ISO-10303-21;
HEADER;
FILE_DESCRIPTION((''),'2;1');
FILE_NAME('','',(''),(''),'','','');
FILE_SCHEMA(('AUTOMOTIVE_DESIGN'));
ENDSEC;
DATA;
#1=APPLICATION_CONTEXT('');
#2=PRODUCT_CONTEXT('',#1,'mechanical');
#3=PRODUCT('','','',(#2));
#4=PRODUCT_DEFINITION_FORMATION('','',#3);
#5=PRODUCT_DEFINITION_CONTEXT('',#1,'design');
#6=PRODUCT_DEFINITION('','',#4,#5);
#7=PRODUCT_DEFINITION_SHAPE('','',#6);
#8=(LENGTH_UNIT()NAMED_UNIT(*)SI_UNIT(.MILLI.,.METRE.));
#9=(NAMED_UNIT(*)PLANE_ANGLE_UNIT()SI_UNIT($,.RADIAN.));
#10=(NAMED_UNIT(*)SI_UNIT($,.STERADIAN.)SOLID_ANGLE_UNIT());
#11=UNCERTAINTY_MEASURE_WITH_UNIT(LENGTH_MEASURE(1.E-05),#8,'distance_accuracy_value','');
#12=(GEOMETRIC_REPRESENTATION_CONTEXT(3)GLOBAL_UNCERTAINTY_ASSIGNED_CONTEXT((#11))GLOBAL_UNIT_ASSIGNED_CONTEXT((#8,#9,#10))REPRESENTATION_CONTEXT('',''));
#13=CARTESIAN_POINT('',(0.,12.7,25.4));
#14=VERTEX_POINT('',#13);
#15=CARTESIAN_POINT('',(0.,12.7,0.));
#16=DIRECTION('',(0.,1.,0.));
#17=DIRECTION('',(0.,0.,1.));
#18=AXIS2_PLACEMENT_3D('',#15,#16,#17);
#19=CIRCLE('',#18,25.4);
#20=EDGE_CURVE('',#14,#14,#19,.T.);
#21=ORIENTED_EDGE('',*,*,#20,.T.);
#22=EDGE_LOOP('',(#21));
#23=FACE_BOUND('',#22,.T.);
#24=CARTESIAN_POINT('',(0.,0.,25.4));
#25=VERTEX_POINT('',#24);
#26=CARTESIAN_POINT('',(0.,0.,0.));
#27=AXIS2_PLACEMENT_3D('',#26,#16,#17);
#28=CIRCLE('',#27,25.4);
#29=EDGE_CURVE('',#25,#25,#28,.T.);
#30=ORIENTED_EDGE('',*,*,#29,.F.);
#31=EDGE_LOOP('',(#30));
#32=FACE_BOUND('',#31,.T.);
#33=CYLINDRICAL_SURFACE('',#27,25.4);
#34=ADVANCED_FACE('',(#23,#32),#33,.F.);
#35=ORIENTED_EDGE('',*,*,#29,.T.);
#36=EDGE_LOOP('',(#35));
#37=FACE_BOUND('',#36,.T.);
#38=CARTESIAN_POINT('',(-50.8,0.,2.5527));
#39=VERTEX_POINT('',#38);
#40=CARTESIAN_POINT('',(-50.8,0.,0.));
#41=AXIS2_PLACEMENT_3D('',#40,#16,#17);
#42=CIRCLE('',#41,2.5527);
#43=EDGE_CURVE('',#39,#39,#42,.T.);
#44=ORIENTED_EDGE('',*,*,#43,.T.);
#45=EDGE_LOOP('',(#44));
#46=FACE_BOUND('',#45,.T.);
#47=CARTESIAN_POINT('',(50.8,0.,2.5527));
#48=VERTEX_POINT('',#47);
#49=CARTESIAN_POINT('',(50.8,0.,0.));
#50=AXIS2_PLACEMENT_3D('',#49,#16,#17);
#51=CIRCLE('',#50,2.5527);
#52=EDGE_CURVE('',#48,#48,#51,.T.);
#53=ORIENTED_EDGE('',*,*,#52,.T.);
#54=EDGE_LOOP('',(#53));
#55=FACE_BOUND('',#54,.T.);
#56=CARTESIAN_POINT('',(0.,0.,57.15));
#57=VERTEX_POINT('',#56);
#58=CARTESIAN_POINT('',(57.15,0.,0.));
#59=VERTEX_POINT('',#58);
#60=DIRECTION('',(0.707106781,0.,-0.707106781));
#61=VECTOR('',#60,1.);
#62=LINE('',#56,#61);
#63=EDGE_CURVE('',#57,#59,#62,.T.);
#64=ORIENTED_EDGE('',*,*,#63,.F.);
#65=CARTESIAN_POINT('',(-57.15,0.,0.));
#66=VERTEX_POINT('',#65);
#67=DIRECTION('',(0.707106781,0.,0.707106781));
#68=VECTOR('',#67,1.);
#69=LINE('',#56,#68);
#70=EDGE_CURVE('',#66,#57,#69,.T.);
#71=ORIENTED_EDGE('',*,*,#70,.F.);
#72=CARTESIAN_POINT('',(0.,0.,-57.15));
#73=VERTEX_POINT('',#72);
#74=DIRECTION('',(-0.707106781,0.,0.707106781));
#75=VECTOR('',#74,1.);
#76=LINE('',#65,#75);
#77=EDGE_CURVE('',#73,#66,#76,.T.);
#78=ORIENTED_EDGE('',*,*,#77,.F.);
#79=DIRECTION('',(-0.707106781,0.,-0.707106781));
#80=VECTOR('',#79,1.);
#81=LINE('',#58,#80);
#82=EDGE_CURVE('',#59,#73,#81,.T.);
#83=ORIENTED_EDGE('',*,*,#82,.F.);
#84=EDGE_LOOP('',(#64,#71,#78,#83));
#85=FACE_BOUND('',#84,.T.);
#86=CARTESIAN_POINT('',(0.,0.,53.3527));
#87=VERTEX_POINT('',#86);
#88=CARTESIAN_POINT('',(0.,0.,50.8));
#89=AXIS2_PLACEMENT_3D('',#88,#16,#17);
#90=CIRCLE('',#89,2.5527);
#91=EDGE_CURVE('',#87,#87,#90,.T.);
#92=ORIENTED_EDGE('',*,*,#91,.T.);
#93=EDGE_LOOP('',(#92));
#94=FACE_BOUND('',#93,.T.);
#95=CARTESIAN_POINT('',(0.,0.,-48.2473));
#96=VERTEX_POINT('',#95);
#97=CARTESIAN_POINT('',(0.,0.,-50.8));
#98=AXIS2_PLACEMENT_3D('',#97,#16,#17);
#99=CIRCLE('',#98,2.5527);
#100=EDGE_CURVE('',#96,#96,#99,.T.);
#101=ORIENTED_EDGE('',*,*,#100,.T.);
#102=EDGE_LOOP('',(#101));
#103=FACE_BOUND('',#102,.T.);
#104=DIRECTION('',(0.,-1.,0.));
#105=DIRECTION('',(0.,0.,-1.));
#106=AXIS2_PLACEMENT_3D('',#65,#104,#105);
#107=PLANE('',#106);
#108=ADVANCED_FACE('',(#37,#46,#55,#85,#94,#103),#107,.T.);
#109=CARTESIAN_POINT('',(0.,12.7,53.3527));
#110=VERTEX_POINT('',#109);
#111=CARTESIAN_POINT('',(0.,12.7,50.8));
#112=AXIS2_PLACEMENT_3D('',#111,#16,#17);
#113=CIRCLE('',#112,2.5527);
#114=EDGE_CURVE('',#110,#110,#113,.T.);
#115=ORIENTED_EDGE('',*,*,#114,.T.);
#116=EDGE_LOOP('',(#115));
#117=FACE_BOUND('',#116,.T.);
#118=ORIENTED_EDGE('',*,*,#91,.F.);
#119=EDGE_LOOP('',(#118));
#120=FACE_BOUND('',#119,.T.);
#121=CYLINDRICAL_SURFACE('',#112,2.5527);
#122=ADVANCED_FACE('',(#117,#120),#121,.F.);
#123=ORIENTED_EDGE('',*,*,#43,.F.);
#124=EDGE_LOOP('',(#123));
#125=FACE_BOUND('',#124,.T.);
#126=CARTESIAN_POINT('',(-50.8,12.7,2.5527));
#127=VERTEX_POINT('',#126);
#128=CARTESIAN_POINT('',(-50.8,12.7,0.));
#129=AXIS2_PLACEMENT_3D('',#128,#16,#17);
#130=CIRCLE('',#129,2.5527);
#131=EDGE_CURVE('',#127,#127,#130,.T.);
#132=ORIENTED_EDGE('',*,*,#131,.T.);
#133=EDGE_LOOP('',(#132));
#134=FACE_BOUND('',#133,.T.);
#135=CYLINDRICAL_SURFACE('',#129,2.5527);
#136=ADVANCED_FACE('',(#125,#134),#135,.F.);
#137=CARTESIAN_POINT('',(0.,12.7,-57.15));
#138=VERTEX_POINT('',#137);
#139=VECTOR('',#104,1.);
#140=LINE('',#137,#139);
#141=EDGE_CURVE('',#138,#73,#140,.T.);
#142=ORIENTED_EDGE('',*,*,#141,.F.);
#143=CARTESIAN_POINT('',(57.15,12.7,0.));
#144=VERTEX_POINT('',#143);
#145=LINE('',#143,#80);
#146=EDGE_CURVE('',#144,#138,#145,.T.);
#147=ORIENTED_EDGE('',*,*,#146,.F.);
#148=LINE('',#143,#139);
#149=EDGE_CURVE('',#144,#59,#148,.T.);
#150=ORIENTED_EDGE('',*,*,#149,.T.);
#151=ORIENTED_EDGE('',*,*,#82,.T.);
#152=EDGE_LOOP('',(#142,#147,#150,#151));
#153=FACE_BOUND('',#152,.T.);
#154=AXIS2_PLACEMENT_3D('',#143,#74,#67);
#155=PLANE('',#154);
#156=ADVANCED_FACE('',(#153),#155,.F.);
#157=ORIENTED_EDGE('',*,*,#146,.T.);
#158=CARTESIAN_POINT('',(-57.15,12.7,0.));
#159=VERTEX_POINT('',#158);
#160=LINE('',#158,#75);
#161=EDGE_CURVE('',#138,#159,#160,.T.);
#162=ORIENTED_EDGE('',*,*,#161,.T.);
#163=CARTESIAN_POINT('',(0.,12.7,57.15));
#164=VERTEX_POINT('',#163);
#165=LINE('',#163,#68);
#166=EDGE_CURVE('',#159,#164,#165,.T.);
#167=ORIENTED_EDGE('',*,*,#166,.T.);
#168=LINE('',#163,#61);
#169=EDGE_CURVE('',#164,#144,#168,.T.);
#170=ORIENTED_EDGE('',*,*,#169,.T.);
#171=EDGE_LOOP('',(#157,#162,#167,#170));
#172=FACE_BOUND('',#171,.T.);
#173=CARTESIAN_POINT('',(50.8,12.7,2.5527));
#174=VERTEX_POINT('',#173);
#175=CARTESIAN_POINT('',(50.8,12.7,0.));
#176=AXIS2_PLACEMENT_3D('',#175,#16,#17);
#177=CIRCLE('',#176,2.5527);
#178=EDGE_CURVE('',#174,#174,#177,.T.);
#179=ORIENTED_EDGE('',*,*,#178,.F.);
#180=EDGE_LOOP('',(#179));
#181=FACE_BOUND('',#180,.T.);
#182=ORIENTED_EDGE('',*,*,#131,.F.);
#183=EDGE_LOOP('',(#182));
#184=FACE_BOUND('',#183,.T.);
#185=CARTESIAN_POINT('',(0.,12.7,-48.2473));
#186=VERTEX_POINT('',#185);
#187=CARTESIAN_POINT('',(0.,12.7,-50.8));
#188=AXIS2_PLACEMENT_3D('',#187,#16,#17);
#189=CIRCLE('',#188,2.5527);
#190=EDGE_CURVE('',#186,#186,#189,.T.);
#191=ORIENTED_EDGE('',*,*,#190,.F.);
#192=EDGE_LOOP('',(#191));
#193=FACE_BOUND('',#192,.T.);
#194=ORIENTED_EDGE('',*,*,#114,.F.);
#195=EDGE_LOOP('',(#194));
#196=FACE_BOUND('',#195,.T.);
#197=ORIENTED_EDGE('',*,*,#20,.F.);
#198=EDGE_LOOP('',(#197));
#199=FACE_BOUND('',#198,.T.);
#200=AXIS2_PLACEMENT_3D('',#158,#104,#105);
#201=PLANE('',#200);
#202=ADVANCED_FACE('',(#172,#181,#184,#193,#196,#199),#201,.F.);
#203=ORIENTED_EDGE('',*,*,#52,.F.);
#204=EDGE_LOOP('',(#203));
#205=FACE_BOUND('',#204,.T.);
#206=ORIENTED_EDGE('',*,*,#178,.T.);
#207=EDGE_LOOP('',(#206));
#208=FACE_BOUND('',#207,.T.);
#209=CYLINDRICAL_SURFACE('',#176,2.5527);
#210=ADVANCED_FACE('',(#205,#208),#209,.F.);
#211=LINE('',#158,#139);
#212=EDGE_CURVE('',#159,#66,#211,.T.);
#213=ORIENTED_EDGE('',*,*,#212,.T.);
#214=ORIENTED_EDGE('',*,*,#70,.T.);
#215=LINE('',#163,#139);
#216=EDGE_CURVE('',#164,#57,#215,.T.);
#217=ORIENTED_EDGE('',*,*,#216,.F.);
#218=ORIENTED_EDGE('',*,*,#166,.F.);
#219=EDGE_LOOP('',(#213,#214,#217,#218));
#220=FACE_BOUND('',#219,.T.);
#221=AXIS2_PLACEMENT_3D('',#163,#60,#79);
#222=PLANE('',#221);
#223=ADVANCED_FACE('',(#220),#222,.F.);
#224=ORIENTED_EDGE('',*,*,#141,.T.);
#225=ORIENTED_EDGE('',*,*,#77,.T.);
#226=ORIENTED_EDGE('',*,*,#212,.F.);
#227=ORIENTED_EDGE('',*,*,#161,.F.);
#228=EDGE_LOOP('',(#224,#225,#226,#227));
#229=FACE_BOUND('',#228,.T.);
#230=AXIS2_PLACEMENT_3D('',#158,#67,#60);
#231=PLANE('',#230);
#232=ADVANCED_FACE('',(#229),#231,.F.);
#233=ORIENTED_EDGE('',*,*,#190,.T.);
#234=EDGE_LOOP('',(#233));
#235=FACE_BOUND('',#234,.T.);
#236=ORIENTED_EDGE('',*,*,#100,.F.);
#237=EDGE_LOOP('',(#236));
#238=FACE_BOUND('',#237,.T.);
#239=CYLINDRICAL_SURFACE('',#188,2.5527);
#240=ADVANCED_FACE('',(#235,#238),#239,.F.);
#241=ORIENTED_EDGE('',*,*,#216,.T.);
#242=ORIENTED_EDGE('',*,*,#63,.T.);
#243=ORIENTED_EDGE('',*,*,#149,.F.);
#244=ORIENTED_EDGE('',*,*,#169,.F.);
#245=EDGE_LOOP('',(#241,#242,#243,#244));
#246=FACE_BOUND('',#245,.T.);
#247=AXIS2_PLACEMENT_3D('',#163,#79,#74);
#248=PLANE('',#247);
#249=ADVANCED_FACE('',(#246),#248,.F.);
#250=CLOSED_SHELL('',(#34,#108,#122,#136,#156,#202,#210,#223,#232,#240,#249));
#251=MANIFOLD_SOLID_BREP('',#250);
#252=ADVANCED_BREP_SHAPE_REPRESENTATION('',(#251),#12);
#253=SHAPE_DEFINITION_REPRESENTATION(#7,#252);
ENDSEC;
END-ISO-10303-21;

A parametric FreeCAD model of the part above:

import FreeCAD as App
import Part
import Sketcher

V = App.Vector
Q = App.Units.Quantity

doc = App.newDocument("Part")
body = doc.addObject("PartDesign::Body", "Body")

sketch1 = doc.addObject("Sketcher::SketchObject", "Sketch")
body.addObject(sketch1)
sketch1.AttachmentSupport = (doc.XZ_Plane, [""])
sketch1.MapMode = "FlatFace"
sketch1.addGeometry([
    Part.LineSegment(V(0, 57, 0), V(57, 0, 0)),
    Part.LineSegment(V(57, 0, 0), V(0, -57, 0)),
    Part.LineSegment(V(0, -57, 0), V(-57, 0, 0)),
    Part.LineSegment(V(-57, 0, 0), V(0, 57, 0)),
], False)
sketch1.addConstraint([
    Sketcher.Constraint("Coincident", 0, 2, 1, 1),
    Sketcher.Constraint("Coincident", 1, 2, 2, 1),
    Sketcher.Constraint("Coincident", 2, 2, 3, 1),
    Sketcher.Constraint("Coincident", 3, 2, 0, 1),
    Sketcher.Constraint("Symmetric", 0, 2, 2, 2, -1, 1),
    Sketcher.Constraint("Symmetric", 1, 2, 3, 2, -1, 1),
    Sketcher.Constraint("PointOnObject", 0, 2, -1),
    Sketcher.Constraint("PointOnObject", 1, 2, -2),
    Sketcher.Constraint("Perpendicular", 0, 1),
    Sketcher.Constraint("DistanceX", 2, 2, 0, 2, Q("4.5 in")),
])
pad1 = doc.addObject("PartDesign::Pad", "Pad")
body.addObject(pad1)
pad1.Profile = sketch1
pad1.Length = Q("0.5 in")
pad1.Reversed = True

sketch2 = doc.addObject("Sketcher::SketchObject", "Sketch001")
body.addObject(sketch2)
sketch2.AttachmentSupport = (doc.XZ_Plane, [""])
sketch2.MapMode = "FlatFace"
sketch2.AttachmentOffset = App.Placement(V(0, 0, -0.5 * 25.4), App.Rotation())
sketch2.addGeometry(Part.Circle(V(0, 0, 0), V(0, 0, 1), 25), False)
sketch2.addConstraint([
    Sketcher.Constraint("Coincident", 0, 3, -1, 1),
    Sketcher.Constraint("Diameter", 0, Q("2 in")),
])
pocket1 = doc.addObject("PartDesign::Pocket", "Pocket")
body.addObject(pocket1)
pocket1.Profile = sketch2
pocket1.Type = "ThroughAll"
pocket1.Reversed = True

sketch3 = doc.addObject("Sketcher::SketchObject", "Sketch002")
body.addObject(sketch3)
sketch3.AttachmentSupport = (doc.XZ_Plane, [""])
sketch3.MapMode = "FlatFace"
sketch3.AttachmentOffset = App.Placement(V(0, 0, -0.5 * 25.4), App.Rotation())
sketch3.addGeometry(Part.Circle(V(0, -50.8, 0), V(0, 0, 1), 2.6), False)
sketch3.addConstraint([
    Sketcher.Constraint("PointOnObject", 0, 3, -2),
    Sketcher.Constraint("Diameter", 0, Q("0.201 in")),
    Sketcher.Constraint("DistanceY", 0, 3, -1, 1, Q("2 in")),
])
doc.recompute()
hole = doc.addObject("PartDesign::Hole", "Hole")
body.addObject(hole)
hole.Profile = sketch3
hole.ThreadType = "None"
hole.Diameter = Q("0.201 in")
hole.DepthType = "ThroughAll"
hole.Reversed = True
doc.recompute()

polarpattern = doc.addObject("PartDesign::PolarPattern", "PolarPattern")
body.addObject(polarpattern)
polarpattern.Originals = [hole]
polarpattern.Axis = (doc.Y_Axis, [""])
polarpattern.Angle = 360
polarpattern.Occurrences = 4
body.Tip = polarpattern

doc.recompute()
